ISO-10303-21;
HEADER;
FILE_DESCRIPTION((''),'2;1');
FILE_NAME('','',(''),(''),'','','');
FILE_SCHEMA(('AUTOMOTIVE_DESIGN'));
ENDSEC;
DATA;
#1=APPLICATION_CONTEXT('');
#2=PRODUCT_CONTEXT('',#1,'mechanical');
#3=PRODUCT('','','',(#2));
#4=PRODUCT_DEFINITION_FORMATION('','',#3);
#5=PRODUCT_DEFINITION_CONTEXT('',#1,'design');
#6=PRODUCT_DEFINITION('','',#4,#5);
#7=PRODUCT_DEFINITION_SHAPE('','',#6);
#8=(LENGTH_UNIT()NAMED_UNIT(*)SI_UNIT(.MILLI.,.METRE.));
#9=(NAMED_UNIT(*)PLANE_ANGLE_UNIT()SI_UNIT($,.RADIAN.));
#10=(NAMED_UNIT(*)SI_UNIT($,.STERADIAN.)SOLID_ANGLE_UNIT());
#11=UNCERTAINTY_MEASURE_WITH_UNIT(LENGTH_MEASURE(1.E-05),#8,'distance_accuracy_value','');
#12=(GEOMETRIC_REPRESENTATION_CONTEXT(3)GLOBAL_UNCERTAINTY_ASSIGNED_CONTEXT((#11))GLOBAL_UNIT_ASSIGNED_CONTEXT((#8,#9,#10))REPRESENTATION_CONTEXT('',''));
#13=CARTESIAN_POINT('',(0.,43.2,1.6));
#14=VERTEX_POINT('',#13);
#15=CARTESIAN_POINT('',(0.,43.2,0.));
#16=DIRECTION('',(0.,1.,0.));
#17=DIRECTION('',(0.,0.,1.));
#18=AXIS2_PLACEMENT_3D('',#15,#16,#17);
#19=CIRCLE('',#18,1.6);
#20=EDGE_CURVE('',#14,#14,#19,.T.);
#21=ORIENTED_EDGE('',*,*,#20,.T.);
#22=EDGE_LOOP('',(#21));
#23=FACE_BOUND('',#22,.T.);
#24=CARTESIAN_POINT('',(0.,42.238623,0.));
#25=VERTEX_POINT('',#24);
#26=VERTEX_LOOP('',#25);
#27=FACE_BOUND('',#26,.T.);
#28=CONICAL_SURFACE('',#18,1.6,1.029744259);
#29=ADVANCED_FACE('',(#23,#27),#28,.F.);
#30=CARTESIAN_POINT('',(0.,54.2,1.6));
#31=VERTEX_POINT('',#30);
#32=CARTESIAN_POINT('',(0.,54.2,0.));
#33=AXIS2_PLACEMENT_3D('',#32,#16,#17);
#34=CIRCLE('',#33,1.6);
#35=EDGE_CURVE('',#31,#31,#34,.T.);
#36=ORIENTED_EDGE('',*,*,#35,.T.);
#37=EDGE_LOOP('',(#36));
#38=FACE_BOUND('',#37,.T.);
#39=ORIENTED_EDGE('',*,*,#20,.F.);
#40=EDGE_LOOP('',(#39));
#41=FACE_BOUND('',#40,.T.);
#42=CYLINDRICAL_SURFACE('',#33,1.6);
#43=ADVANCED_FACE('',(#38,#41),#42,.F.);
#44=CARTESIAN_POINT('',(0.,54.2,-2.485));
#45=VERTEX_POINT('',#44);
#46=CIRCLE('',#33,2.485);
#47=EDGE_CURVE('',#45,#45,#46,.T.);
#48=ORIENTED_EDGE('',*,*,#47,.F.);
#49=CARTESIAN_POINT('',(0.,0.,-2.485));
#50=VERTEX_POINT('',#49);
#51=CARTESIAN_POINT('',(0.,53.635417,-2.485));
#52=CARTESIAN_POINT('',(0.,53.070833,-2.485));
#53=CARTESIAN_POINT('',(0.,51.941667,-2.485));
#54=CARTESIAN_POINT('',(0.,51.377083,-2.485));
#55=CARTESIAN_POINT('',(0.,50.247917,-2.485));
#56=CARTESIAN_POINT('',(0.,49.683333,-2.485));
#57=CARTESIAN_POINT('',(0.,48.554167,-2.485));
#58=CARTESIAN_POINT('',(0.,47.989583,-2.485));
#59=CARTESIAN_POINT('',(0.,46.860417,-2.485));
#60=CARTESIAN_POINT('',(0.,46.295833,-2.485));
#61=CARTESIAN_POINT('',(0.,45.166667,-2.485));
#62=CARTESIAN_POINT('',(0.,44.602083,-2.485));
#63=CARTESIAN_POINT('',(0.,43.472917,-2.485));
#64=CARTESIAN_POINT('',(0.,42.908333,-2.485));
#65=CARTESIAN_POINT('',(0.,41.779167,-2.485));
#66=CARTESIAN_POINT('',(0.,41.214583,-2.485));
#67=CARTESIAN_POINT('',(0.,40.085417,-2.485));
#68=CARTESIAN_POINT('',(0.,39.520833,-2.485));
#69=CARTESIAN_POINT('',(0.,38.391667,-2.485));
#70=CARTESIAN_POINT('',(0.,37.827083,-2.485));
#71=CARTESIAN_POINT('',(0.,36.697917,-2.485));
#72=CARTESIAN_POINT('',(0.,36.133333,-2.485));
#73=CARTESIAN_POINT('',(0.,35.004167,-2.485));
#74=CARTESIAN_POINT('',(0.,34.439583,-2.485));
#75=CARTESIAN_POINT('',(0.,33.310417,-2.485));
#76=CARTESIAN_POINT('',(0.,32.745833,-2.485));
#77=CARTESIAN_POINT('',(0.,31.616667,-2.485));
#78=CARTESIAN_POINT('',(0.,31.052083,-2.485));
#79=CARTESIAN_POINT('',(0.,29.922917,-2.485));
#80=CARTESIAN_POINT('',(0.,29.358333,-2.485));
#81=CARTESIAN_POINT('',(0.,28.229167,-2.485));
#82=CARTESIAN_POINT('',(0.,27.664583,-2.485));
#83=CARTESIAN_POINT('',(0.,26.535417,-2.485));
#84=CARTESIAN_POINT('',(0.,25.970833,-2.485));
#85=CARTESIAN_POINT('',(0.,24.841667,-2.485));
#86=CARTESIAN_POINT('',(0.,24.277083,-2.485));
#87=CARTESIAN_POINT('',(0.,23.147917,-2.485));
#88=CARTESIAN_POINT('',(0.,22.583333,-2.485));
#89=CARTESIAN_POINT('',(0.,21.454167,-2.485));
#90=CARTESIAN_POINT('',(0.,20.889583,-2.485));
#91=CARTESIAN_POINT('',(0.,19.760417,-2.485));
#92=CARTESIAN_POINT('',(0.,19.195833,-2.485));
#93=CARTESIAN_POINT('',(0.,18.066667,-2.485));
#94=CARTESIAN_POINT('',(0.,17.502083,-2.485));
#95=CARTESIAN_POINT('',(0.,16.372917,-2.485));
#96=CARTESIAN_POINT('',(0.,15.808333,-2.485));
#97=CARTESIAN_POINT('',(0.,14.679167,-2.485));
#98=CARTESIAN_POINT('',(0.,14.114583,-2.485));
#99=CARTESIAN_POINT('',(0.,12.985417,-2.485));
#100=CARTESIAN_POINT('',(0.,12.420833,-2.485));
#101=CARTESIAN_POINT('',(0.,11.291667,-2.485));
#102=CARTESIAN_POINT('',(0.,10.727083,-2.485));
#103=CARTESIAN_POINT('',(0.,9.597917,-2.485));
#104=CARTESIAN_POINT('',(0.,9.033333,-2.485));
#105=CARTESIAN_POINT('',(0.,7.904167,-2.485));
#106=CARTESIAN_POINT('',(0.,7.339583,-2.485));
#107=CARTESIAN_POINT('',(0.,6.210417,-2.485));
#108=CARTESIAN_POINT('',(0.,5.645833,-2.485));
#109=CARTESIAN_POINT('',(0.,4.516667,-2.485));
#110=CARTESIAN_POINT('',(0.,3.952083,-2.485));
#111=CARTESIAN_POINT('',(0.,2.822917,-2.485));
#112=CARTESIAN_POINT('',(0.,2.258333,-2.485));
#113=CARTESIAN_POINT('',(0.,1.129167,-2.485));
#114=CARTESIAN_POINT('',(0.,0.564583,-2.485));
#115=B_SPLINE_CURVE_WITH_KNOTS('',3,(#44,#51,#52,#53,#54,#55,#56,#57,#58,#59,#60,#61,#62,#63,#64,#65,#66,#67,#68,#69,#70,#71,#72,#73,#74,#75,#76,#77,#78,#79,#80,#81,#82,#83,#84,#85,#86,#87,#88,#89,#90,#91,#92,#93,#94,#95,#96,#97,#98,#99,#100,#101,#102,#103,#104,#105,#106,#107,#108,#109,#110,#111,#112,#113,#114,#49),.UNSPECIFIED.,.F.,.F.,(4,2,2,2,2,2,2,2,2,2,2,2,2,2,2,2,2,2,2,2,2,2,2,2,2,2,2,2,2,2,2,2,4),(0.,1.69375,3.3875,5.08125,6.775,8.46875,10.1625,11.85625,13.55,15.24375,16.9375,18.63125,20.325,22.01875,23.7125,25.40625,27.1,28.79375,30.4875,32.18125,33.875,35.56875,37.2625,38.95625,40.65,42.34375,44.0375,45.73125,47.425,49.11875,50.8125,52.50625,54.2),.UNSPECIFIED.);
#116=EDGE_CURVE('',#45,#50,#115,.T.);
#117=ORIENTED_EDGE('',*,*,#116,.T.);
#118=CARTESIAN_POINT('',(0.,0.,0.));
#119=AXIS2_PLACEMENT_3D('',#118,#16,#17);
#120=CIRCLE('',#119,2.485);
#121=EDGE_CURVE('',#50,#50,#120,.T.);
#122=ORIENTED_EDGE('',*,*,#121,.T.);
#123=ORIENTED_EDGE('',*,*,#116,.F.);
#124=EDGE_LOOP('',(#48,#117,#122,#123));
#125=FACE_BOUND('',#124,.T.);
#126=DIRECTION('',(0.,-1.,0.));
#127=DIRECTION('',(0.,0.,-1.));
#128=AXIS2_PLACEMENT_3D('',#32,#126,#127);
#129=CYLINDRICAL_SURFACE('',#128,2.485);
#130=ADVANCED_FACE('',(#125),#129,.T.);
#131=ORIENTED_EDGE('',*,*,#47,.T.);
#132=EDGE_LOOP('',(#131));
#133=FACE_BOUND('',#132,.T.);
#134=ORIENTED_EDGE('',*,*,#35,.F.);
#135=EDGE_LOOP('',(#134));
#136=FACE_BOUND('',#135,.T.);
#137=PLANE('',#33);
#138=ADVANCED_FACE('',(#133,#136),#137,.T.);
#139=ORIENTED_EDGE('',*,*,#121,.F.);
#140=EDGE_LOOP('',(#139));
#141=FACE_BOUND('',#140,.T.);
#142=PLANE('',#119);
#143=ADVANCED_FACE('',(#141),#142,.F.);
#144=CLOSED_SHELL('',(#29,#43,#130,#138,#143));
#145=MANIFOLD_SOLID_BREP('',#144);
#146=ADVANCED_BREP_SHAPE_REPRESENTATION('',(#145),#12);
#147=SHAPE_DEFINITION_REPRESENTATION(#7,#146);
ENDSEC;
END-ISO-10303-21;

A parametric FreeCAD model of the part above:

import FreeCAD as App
import Part
import Sketcher
from FreeCAD import Vector

doc = App.newDocument("Part")
params = doc.addObject("Spreadsheet::Sheet", "Params")
for row, (alias, value) in enumerate([
    ("sketch1_diameter", "4.97 mm"),
    ("pad1_length", "54.2 mm"),
    ("sketch2_diameter", "3.2 mm"),
    ("hole_diameter", "3.2 mm"),
    ("hole_depth", "11 mm"),
], start=1):
    params.set(f"A{row}", alias)
    params.set(f"B{row}", "=" + value)
    params.setAlias(f"B{row}", alias)

body = doc.addObject("PartDesign::Body", "Body")

sketch1 = body.newObject("Sketcher::SketchObject", "Sketch")
sketch1.AttachmentSupport = (doc.getObject("XZ_Plane"), [""])
sketch1.MapMode = "FlatFace"
sketch1.addGeometry(Part.Circle(Vector(0, 0, 0), Vector(0, 0, 1), 2.485), False)
sketch1.addConstraint([
    Sketcher.Constraint("Coincident", 0, 3, -1, 1),
    Sketcher.Constraint("Diameter", 0, 4.97),
])
sketch1.setExpression("Constraints[1]", "Params.sketch1_diameter")
pad1 = body.newObject("PartDesign::Pad", "Pad")
pad1.Profile = sketch1
pad1.setExpression("Length", "Params.pad1_length")
pad1.Reversed = True

sketch2 = body.newObject("Sketcher::SketchObject", "Sketch001")
sketch2.AttachmentSupport = (doc.getObject("XZ_Plane"), [""])
sketch2.MapMode = "FlatFace"
sketch2.AttachmentOffset = App.Placement(Vector(0, 0, -54.2), App.Rotation())
sketch2.addGeometry(Part.Circle(Vector(0, 0, 0), Vector(0, 0, 1), 1.6), False)
sketch2.addConstraint([
    Sketcher.Constraint("Coincident", 0, 3, -1, 1),
    Sketcher.Constraint("Diameter", 0, 3.2),
])
sketch2.setExpression("Constraints[1]", "Params.sketch2_diameter")
doc.recompute()
hole = body.newObject("PartDesign::Hole", "Hole")
hole.Profile = sketch2
hole.ThreadType = "None"
hole.setExpression("Diameter", "Params.hole_diameter")
hole.DepthType = "Dimension"
hole.setExpression("Depth", "Params.hole_depth")
hole.DrillPoint = "Angled"
hole.DrillPointAngle = 118
hole.Reversed = True

doc.recompute()
